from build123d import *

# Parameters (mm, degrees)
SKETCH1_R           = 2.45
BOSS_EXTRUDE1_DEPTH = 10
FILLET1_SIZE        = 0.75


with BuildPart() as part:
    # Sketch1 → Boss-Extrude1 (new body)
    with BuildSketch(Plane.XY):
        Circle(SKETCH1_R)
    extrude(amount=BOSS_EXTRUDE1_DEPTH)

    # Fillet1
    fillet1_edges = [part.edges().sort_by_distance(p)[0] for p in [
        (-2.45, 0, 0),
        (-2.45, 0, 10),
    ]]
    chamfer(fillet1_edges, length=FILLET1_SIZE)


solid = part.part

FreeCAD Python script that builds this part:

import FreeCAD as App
import Part
import Sketcher
from FreeCAD import Vector
Q = App.Units.Quantity


def edges_at(feature, points):
    """Names of the edges that pass closest to the given points."""
    edges = feature.Shape.Edges
    near = lambda p: min(range(len(edges)), key=lambda i: edges[i].distToShape(Part.Vertex(*p))[0])
    return sorted({f"Edge{near(p) + 1}" for p in points})

doc = App.newDocument("Part")
body = doc.addObject("PartDesign::Body", "Body")

# Sketch on XY plane
sketch1 = doc.addObject("Sketcher::SketchObject", "Sketch")
body.addObject(sketch1)
sketch1.AttachmentSupport = (doc.XY_Plane, [""])
sketch1.MapMode = "FlatFace"
sketch1.addGeometry(Part.Circle(Vector(0, 0, 0), Vector(0, 0, 1), 2.5), False)
sketch1.addConstraint(Sketcher.Constraint("Coincident", 0, 3, -1, 1))
sketch1.addConstraint(Sketcher.Constraint("Diameter", 0, Q("4.9 mm")))
pad1 = doc.addObject("PartDesign::Pad", "Pad")
body.addObject(pad1)
pad1.Profile = sketch1
pad1.Length = 10
doc.recompute()

chamfer = doc.addObject("PartDesign::Chamfer", "Chamfer")
body.addObject(chamfer)
chamfer.Base = (pad1, edges_at(pad1, [(-2.45, 0, 0), (-2.45, 0, 10)]))
chamfer.Size = 0.75

doc.recompute()
